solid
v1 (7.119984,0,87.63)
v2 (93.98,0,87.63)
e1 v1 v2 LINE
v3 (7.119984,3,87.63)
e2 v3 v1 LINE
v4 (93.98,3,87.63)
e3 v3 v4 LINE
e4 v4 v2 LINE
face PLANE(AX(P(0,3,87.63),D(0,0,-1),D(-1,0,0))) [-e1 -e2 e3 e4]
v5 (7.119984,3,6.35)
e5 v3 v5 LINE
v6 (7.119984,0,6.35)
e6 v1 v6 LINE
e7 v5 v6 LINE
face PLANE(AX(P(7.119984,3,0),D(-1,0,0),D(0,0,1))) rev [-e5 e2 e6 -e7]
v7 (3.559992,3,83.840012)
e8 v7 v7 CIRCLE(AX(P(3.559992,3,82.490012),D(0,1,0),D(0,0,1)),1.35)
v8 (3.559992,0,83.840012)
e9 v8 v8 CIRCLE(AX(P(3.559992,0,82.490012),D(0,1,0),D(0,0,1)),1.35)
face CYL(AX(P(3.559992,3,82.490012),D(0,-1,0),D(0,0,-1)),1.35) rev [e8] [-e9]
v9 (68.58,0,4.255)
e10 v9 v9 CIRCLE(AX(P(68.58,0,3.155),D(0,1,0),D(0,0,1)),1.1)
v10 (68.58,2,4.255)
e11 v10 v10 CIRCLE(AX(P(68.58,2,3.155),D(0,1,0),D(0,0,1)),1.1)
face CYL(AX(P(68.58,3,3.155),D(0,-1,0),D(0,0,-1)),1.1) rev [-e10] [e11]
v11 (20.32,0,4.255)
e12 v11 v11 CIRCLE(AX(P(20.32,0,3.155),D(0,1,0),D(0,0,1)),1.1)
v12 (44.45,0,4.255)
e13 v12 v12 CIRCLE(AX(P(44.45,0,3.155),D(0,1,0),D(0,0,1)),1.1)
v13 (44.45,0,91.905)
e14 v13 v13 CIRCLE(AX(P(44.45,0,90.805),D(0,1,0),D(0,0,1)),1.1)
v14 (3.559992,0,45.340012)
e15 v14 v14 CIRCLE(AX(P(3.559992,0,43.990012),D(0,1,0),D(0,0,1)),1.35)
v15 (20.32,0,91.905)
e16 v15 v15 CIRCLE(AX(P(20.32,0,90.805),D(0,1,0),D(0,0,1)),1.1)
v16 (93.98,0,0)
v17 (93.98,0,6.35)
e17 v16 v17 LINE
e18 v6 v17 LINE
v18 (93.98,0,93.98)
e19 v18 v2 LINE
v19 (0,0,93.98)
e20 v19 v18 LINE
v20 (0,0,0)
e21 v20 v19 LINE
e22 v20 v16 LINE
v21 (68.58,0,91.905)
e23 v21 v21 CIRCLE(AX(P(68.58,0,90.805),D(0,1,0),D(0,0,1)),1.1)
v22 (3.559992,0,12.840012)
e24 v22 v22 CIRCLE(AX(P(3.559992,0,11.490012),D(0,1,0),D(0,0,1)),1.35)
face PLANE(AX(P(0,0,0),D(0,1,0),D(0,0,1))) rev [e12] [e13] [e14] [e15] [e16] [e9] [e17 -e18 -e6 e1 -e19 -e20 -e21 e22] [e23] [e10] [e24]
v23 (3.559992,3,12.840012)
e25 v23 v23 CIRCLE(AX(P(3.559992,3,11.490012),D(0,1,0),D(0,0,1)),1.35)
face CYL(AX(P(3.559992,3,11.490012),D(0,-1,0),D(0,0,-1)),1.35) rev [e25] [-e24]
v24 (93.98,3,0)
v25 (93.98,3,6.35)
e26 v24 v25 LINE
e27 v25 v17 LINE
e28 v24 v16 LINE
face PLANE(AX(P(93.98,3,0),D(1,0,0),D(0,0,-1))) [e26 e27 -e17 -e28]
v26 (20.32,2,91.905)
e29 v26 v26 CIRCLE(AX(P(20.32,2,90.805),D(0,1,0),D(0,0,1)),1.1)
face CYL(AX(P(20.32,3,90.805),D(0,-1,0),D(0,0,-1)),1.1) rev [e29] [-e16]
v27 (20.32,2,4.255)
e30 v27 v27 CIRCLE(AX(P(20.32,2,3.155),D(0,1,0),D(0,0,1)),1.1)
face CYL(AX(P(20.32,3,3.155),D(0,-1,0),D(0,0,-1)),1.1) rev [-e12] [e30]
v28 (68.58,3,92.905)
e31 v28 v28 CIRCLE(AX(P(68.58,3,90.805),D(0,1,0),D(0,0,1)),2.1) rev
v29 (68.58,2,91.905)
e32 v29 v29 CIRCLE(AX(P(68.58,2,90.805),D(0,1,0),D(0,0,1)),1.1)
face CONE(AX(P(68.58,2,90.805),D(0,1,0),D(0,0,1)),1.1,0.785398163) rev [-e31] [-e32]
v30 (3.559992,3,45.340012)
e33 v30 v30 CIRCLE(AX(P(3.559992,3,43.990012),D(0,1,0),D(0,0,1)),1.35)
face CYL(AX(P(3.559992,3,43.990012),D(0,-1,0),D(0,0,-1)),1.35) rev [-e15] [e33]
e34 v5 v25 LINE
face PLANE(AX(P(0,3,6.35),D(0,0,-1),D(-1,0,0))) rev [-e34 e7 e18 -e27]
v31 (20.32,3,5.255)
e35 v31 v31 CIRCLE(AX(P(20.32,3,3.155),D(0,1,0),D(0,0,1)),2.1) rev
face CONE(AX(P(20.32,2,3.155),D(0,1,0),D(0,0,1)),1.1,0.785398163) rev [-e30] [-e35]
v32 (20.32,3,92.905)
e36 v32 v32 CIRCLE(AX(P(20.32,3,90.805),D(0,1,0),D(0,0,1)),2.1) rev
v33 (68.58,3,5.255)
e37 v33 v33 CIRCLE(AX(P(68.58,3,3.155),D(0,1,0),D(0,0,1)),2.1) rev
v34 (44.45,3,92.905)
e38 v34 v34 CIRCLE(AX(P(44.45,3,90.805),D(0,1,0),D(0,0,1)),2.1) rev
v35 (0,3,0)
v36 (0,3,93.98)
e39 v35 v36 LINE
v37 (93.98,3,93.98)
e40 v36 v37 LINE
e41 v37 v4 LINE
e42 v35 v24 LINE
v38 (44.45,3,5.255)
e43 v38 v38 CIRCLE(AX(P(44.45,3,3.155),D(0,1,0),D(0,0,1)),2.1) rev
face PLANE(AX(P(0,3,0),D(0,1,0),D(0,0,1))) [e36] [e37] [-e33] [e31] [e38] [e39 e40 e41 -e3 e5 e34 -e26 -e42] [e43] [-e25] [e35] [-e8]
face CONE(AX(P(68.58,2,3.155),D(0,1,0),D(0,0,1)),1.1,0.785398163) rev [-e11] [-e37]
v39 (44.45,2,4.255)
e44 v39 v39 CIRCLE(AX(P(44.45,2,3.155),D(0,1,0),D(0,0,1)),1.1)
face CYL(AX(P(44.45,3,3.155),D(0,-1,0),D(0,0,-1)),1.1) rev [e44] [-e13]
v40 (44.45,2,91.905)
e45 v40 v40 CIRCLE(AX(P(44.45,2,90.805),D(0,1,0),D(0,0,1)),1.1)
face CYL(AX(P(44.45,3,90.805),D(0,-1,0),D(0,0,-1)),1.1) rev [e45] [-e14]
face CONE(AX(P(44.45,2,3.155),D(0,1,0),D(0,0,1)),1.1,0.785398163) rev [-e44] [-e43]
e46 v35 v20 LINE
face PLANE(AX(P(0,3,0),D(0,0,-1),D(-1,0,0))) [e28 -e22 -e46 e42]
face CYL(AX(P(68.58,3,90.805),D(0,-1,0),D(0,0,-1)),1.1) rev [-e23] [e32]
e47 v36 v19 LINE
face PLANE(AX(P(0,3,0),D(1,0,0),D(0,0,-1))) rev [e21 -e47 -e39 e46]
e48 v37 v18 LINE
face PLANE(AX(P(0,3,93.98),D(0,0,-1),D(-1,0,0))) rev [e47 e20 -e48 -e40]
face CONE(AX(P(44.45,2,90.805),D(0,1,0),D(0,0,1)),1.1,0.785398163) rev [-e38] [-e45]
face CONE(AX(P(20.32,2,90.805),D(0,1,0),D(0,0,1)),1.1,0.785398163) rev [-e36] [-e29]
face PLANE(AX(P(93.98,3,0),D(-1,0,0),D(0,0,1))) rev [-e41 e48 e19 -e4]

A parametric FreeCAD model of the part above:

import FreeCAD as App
import Part
import Sketcher

V = App.Vector
Q = App.Units.Quantity


def edges_at(feature, points):
    """Names of the edges that pass closest to the given points."""
    edges = feature.Shape.Edges
    near = lambda p: min(range(len(edges)), key=lambda i: edges[i].distToShape(Part.Vertex(*p))[0])
    return sorted({f"Edge{near(p) + 1}" for p in points})


def add_polygon(sketch, points):
    """Adds a closed chain of lines whose ends are joined by coincident constraints."""
    first, n = sketch.GeometryCount, len(points)
    for a, b in zip(points, points[1:] + points[:1]):
        sketch.addGeometry(Part.LineSegment(App.Vector(*a, 0), App.Vector(*b, 0)), False)
    for i in range(n):
        sketch.addConstraint(Sketcher.Constraint("Coincident", first + i, 2, first + (i + 1) % n, 1))

doc = App.newDocument("Part")
body = doc.addObject("PartDesign::Body", "Body")

# Sketch on XZ plane
sketch1 = body.newObject("Sketcher::SketchObject", "Sketch")
sketch1.AttachmentSupport = (doc.getObject("XZ_Plane"), [""])
sketch1.MapMode = "FlatFace"
add_polygon(sketch1, [(0, 93.98), (93.98, 93.98), (93.98, 87.63), (7.119984, 87.63), (7.119984, 6.35), (93.98, 6.35), (93.98, 0), (0, 0)])  # lines 0-7
sketch1.addGeometry(Part.Circle(V(3.559992, 82.490012, 0), V(0, 0, 1), 1.35), False)  # 8
sketch1.addGeometry(Part.Circle(V(3.559992, 43.990012, 0), V(0, 0, 1), 1.35), False)  # 9
sketch1.addGeometry(Part.Circle(V(3.559992, 11.490012, 0), V(0, 0, 1), 1.35), False)  # 10
sketch1.addGeometry(Part.Circle(V(68.58, 90.805, 0), V(0, 0, 1), 1.1), False)  # 11
sketch1.addGeometry(Part.Circle(V(20.32, 90.805, 0), V(0, 0, 1), 1.1), False)  # 12
sketch1.addGeometry(Part.Circle(V(44.45, 90.805, 0), V(0, 0, 1), 1.1), False)  # 13
sketch1.addGeometry(Part.Circle(V(68.58, 3.155, 0), V(0, 0, 1), 1.1), False)  # 14
sketch1.addGeometry(Part.Circle(V(20.32, 3.155, 0), V(0, 0, 1), 1.1), False)  # 15
sketch1.addGeometry(Part.Circle(V(44.45, 3.155, 0), V(0, 0, 1), 1.1), False)  # 16
sketch1.addConstraint([
    Sketcher.Constraint("Horizontal", 0),
    Sketcher.Constraint("Vertical", 1),
    Sketcher.Constraint("Horizontal", 2),
    Sketcher.Constraint("Vertical", 3),
    Sketcher.Constraint("Horizontal", 4),
    Sketcher.Constraint("Vertical", 5),
    Sketcher.Constraint("Horizontal", 6),
    Sketcher.Constraint("Vertical", 7),
    Sketcher.Constraint("Coincident", 6, 2, -1, 1),
    Sketcher.Constraint("Equal", 8, 9),
    Sketcher.Constraint("Equal", 9, 10),
    Sketcher.Constraint("Equal", 11, 12),
    Sketcher.Constraint("Equal", 12, 13),
    Sketcher.Constraint("Equal", 13, 14),
    Sketcher.Constraint("Equal", 14, 15),
    Sketcher.Constraint("Equal", 15, 16),
    Sketcher.Constraint("Horizontal", 11, 3, 12, 3),
    Sketcher.Constraint("Horizontal", 12, 3, 13, 3),
    Sketcher.Constraint("Horizontal", 14, 3, 15, 3),
    Sketcher.Constraint("Horizontal", 15, 3, 16, 3),
    Sketcher.Constraint("Vertical", 8, 3, 9, 3),
    Sketcher.Constraint("Vertical", 9, 3, 10, 3),
    Sketcher.Constraint("Vertical", 11, 3, 14, 3),
    Sketcher.Constraint("Vertical", 12, 3, 15, 3),
    Sketcher.Constraint("Vertical", 13, 3, 16, 3),
    Sketcher.Constraint("Vertical", 1, 2, 4, 2),
    Sketcher.Constraint("Equal", 1, 5),
    Sketcher.Constraint("Equal", 6, 7),
    Sketcher.Constraint("Diameter", 8, Q("2.7 mm")),
    Sketcher.Constraint("Diameter", 11, Q("2.2 mm")),
    Sketcher.Constraint("DistanceY", 10, 3, 8, 3, Q("71 mm")),
    Sketcher.Constraint("DistanceX", 0, 1, 0, 2, Q("93.98 mm")),
    Sketcher.Constraint("DistanceY", 1, 2, 1, 1, Q("6.35 mm")),
    Sketcher.Constraint("DistanceY", 9, 3, 8, 3, Q("38.5 mm")),
    Sketcher.Constraint("DistanceX", 11, 3, 0, 2, Q("25.4 mm")),
    Sketcher.Constraint("DistanceX", -1, 1, 12, 3, Q("20.32 mm")),
    Sketcher.Constraint("DistanceX", -1, 1, 13, 3, Q("44.45 mm")),
    Sketcher.Constraint("DistanceY", 14, 3, 11, 3, Q("87.65 mm")),
    Sketcher.Constraint("DistanceY", -1, 1, 11, 3, Q("90.805 mm")),
    Sketcher.Constraint("DistanceX", 2, 2, 2, 1, Q("86.860016 mm")),
    Sketcher.Constraint("DistanceX", -1, 1, 8, 3, Q("3.559992 mm")),
    Sketcher.Constraint("DistanceY", -1, 1, 8, 3, Q("82.490012 mm")),
])
pad1 = body.newObject("PartDesign::Pad", "Pad")
pad1.Profile = sketch1
pad1.Length = 3
pad1.Reversed = True
doc.recompute()

chamfer = body.newObject("PartDesign::Chamfer", "Chamfer")
chamfer.Base = (pad1, edges_at(pad1, [
    (20.32, 3, 89.705),
    (68.58, 3, 2.055),
    (44.45, 3, 2.055),
    (20.32, 3, 2.055),
    (68.58, 3, 89.705),
    (44.45, 3, 89.705),
]))
chamfer.Size = 1

doc.recompute()
